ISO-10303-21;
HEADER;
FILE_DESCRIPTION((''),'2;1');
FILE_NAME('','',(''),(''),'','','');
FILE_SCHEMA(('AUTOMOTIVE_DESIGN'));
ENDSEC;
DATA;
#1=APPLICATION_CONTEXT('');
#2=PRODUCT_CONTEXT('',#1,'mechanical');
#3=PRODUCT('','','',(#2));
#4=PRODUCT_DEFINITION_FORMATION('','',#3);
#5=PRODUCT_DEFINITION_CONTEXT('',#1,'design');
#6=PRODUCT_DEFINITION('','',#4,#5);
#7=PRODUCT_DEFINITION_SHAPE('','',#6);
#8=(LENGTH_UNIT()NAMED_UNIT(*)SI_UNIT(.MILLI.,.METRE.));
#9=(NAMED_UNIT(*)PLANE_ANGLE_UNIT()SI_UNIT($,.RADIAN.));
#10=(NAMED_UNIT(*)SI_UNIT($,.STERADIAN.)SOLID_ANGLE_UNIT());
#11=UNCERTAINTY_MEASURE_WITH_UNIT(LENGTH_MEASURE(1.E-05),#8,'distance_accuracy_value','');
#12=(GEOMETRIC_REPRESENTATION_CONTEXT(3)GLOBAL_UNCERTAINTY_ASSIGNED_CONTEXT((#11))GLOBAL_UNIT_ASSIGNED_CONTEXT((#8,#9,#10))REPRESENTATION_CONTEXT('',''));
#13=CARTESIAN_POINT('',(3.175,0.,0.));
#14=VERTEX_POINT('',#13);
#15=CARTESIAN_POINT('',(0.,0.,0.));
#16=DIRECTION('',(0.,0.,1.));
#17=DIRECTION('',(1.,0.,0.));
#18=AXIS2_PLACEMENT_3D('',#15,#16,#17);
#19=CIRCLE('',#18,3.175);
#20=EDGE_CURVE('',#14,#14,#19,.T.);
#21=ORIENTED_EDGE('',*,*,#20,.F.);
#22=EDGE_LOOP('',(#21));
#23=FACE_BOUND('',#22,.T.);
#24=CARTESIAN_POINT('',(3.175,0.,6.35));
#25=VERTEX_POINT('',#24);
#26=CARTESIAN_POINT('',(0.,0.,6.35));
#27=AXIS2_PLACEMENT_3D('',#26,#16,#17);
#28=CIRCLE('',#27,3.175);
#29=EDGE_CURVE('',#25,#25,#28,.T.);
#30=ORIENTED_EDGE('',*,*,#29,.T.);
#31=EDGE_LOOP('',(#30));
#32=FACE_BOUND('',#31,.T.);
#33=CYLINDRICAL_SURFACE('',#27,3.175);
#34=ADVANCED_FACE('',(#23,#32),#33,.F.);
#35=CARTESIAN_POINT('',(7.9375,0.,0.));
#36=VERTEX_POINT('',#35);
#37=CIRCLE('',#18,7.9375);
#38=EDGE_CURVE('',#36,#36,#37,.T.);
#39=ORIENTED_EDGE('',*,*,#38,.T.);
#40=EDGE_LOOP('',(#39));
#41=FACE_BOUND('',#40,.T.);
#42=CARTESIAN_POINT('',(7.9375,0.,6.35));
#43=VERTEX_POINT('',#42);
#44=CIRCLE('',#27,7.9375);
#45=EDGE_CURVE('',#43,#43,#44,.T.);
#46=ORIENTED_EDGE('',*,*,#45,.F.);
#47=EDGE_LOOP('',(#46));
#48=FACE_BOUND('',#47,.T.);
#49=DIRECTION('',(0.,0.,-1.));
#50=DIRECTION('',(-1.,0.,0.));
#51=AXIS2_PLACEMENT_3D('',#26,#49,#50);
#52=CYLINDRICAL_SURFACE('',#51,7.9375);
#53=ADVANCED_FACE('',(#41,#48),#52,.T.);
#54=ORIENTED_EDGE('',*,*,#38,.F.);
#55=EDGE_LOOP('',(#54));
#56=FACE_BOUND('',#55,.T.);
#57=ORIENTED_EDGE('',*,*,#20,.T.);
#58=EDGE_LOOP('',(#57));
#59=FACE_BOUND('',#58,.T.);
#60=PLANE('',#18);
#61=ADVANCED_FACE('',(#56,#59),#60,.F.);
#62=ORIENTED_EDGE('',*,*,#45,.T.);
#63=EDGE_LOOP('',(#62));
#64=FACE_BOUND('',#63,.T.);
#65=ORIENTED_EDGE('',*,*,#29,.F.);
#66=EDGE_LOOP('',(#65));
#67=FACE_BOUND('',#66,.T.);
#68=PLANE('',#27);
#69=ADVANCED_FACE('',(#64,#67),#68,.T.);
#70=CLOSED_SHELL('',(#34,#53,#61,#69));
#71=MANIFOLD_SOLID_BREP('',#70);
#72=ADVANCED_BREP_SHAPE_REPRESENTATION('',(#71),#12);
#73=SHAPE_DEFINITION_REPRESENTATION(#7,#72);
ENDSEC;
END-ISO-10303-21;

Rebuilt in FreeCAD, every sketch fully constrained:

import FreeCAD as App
import Part
import Sketcher
Q = App.Units.Quantity

doc = App.newDocument("Part")
body = doc.addObject("PartDesign::Body", "Body")

# Sketch on XY plane
sketch1 = body.newObject("Sketcher::SketchObject", "Sketch")
sketch1.AttachmentSupport = (doc.getObject("XY_Plane"), [""])
sketch1.MapMode = "FlatFace"
sketch1.addGeometry(Part.Circle(App.Vector(0, 0, 0), App.Vector(0, 0, 1), 8), False)
sketch1.addConstraint([
    Sketcher.Constraint("Coincident", 0, 3, -1, 1),
    Sketcher.Constraint("Diameter", 0, Q("0.625 in")),
])
pad1 = body.newObject("PartDesign::Pad", "Pad")
pad1.Profile = sketch1
pad1.Length = Q("0.25 in")

# Sketch on XY plane
sketch2 = body.newObject("Sketcher::SketchObject", "Sketch001")
sketch2.AttachmentSupport = (doc.getObject("XY_Plane"), [""])
sketch2.MapMode = "FlatFace"
sketch2.AttachmentOffset = App.Placement(App.Vector(0, 0, 0.25 * 25.4), App.Rotation())
sketch2.addGeometry(Part.Circle(App.Vector(0, 0, 0), App.Vector(0, 0, 1), 3.2), False)
sketch2.addConstraint([
    Sketcher.Constraint("Coincident", 0, 3, -1, 1),
    Sketcher.Constraint("Diameter", 0, Q("0.25 in")),
])
doc.recompute()
hole = body.newObject("PartDesign::Hole", "Hole")
hole.Profile = sketch2
hole.ThreadType = "None"
hole.Diameter = Q("0.25 in")
hole.DepthType = "ThroughAll"

doc.recompute()
